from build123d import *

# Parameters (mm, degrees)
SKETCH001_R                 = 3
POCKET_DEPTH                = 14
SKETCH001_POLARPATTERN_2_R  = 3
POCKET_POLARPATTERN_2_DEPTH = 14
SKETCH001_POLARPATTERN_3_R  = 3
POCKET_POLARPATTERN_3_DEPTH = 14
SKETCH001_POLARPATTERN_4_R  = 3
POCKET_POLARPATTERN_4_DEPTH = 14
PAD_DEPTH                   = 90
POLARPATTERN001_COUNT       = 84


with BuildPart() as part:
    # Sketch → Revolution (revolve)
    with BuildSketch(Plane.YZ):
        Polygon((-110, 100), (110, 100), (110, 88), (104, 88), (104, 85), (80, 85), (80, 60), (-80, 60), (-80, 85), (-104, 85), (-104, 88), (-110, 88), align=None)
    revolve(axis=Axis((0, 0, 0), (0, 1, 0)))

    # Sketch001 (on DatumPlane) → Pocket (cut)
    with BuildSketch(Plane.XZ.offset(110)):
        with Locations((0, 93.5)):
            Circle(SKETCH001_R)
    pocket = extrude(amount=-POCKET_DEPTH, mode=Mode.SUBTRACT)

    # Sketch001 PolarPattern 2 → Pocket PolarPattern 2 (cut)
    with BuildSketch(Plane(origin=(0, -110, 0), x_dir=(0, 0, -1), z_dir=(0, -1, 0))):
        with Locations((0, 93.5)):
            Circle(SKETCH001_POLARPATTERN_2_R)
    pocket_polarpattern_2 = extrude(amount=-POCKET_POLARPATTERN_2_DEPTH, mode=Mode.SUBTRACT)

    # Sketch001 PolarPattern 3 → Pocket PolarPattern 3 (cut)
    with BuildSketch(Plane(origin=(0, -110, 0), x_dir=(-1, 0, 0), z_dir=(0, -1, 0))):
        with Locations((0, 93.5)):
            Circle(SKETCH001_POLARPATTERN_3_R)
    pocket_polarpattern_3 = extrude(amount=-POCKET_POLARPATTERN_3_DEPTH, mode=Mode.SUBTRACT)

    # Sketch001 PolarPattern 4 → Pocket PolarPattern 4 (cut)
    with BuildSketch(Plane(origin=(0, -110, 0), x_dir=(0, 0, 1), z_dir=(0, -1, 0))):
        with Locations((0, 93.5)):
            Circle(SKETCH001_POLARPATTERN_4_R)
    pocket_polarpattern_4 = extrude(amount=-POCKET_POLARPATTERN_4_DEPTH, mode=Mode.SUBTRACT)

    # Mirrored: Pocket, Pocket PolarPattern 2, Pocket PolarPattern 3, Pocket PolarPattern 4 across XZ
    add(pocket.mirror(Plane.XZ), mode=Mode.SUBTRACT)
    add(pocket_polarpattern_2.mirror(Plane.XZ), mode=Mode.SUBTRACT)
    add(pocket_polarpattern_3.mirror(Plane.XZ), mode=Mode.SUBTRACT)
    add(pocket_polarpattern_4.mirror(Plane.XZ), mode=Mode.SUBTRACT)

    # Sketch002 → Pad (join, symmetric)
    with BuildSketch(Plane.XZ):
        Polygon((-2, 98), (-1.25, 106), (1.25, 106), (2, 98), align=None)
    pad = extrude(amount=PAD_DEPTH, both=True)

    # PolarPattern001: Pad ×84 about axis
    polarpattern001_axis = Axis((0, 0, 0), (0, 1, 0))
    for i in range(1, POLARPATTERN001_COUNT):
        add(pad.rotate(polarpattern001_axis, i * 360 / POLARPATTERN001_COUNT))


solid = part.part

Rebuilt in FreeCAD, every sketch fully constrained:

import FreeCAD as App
import Part
import Sketcher

V = App.Vector
Q = App.Units.Quantity


def add_polygon(sketch, points):
    """Adds a closed chain of lines whose ends are joined by coincident constraints."""
    first, n = sketch.GeometryCount, len(points)
    for a, b in zip(points, points[1:] + points[:1]):
        sketch.addGeometry(Part.LineSegment(App.Vector(*a, 0), App.Vector(*b, 0)), False)
    for i in range(n):
        sketch.addConstraint(Sketcher.Constraint("Coincident", first + i, 2, first + (i + 1) % n, 1))

doc = App.newDocument("Part")
body = doc.addObject("PartDesign::Body", "Body")

# Sketch on YZ plane
sketch1 = doc.addObject("Sketcher::SketchObject", "Sketch")
body.addObject(sketch1)
sketch1.AttachmentSupport = (doc.YZ_Plane, [""])
sketch1.MapMode = "FlatFace"
add_polygon(sketch1, [(110, 100), (-110, 100), (-110, 88), (-104, 88), (-104, 85), (-80, 85), (-80, 60), (80, 60), (80, 85), (104, 85), (104, 88), (110, 88)])  # lines 0-11
sketch1.addConstraint(Sketcher.Constraint("Horizontal", 0))
sketch1.addConstraint(Sketcher.Constraint("Vertical", 1))
sketch1.addConstraint(Sketcher.Constraint("Horizontal", 2))
sketch1.addConstraint(Sketcher.Constraint("Vertical", 3))
sketch1.addConstraint(Sketcher.Constraint("Horizontal", 4))
sketch1.addConstraint(Sketcher.Constraint("Vertical", 5))
sketch1.addConstraint(Sketcher.Constraint("Horizontal", 6))
sketch1.addConstraint(Sketcher.Constraint("Vertical", 7))
sketch1.addConstraint(Sketcher.Constraint("Horizontal", 8))
sketch1.addConstraint(Sketcher.Constraint("Vertical", 9))
sketch1.addConstraint(Sketcher.Constraint("Horizontal", 10))
sketch1.addConstraint(Sketcher.Constraint("Vertical", 11))
sketch1.addConstraint(Sketcher.Constraint("Symmetric", 4, 2, 7, 2, -2))
sketch1.addConstraint(Sketcher.Constraint("Symmetric", 2, 2, 9, 2, -2))
sketch1.addConstraint(Sketcher.Constraint("Equal", 2, 10))
sketch1.addConstraint(Sketcher.Constraint("DistanceX", 0, 2, 0, 1, Q("220 mm")))
sketch1.addConstraint(Sketcher.Constraint("DistanceX", 2, 1, 2, 2, Q("6 mm")))
sketch1.addConstraint(Sketcher.Constraint("DistanceX", 4, 1, 4, 2, Q("24 mm")))
sketch1.addConstraint(Sketcher.Constraint("DistanceY", 1, 2, 1, 1, Q("12 mm")))
sketch1.addConstraint(Sketcher.Constraint("DistanceY", 3, 2, 3, 1, Q("3 mm")))
sketch1.addConstraint(Sketcher.Constraint("DistanceY", 5, 2, 5, 1, Q("25 mm")))
sketch1.addConstraint(Sketcher.Constraint("DistanceY", -1, 1, 0, 2, Q("100 mm")))
revolution = doc.addObject("PartDesign::Revolution", "Revolution")
body.addObject(revolution)
revolution.Profile = sketch1
revolution.ReferenceAxis = (sketch1, ["H_Axis"])
revolution.Angle = 360

# Sketch on XZ plane
sketch2 = doc.addObject("Sketcher::SketchObject", "Sketch001")
body.addObject(sketch2)
sketch2.AttachmentSupport = (doc.XZ_Plane, [""])
sketch2.MapMode = "FlatFace"
sketch2.AttachmentOffset = App.Placement(V(0, 0, 110), App.Rotation())
sketch2.addGeometry(Part.Circle(V(0, 93.5, 0), V(0, 0, 1), 3), False)
sketch2.addConstraint(Sketcher.Constraint("PointOnObject", 0, 3, -2))
sketch2.addConstraint(Sketcher.Constraint("Diameter", 0, Q("6 mm")))
sketch2.addConstraint(Sketcher.Constraint("DistanceY", -1, 1, 0, 3, Q("93.5 mm")))
pocket1 = doc.addObject("PartDesign::Pocket", "Pocket")
body.addObject(pocket1)
pocket1.Profile = sketch2
pocket1.Length = 14

# Sketch on XZ plane
sketch3 = doc.addObject("Sketcher::SketchObject", "Sketch002")
body.addObject(sketch3)
sketch3.AttachmentSupport = (doc.XZ_Plane, [""])
sketch3.MapMode = "FlatFace"
sketch3.AttachmentOffset = App.Placement(V(0, 0, 110), App.Rotation())
sketch3.addGeometry(Part.Circle(V(93.5, 0, 0), V(0, 0, 1), 3), False)
sketch3.addConstraint(Sketcher.Constraint("PointOnObject", 0, 3, -1))
sketch3.addConstraint(Sketcher.Constraint("Diameter", 0, Q("6 mm")))
sketch3.addConstraint(Sketcher.Constraint("DistanceX", -1, 1, 0, 3, Q("93.5 mm")))
pocket2 = doc.addObject("PartDesign::Pocket", "Pocket001")
body.addObject(pocket2)
pocket2.Profile = sketch3
pocket2.Length = 14

# Sketch on XZ plane
sketch4 = doc.addObject("Sketcher::SketchObject", "Sketch003")
body.addObject(sketch4)
sketch4.AttachmentSupport = (doc.XZ_Plane, [""])
sketch4.MapMode = "FlatFace"
sketch4.AttachmentOffset = App.Placement(V(0, 0, 110), App.Rotation())
sketch4.addGeometry(Part.Circle(V(0, -93.5, 0), V(0, 0, 1), 3), False)
sketch4.addConstraint(Sketcher.Constraint("PointOnObject", 0, 3, -2))
sketch4.addConstraint(Sketcher.Constraint("Diameter", 0, Q("6 mm")))
sketch4.addConstraint(Sketcher.Constraint("DistanceY", 0, 3, -1, 1, Q("93.5 mm")))
pocket3 = doc.addObject("PartDesign::Pocket", "Pocket002")
body.addObject(pocket3)
pocket3.Profile = sketch4
pocket3.Length = 14

# Sketch on XZ plane
sketch5 = doc.addObject("Sketcher::SketchObject", "Sketch004")
body.addObject(sketch5)
sketch5.AttachmentSupport = (doc.XZ_Plane, [""])
sketch5.MapMode = "FlatFace"
sketch5.AttachmentOffset = App.Placement(V(0, 0, 110), App.Rotation())
sketch5.addGeometry(Part.Circle(V(-93.5, 0, 0), V(0, 0, 1), 3), False)
sketch5.addConstraint(Sketcher.Constraint("PointOnObject", 0, 3, -1))
sketch5.addConstraint(Sketcher.Constraint("Diameter", 0, Q("6 mm")))
sketch5.addConstraint(Sketcher.Constraint("DistanceX", 0, 3, -1, 1, Q("93.5 mm")))
pocket4 = doc.addObject("PartDesign::Pocket", "Pocket003")
body.addObject(pocket4)
pocket4.Profile = sketch5
pocket4.Length = 14
doc.recompute()

mirrored = doc.addObject("PartDesign::Mirrored", "Mirrored")
body.addObject(mirrored)
mirrored.Originals = [pocket1, pocket2, pocket3, pocket4]
mirrored.MirrorPlane = (doc.XZ_Plane, [""])
body.Tip = mirrored

# Sketch on XZ plane
sketch6 = doc.addObject("Sketcher::SketchObject", "Sketch005")
body.addObject(sketch6)
sketch6.AttachmentSupport = (doc.XZ_Plane, [""])
sketch6.MapMode = "FlatFace"
add_polygon(sketch6, [(-1.25, 106), (-2, 98), (2, 98), (1.25, 106)])  # lines 0-3
sketch6.addConstraint(Sketcher.Constraint("Horizontal", 1))
sketch6.addConstraint(Sketcher.Constraint("Horizontal", 3))
sketch6.addConstraint(Sketcher.Constraint("Equal", 0, 2))
sketch6.addConstraint(Sketcher.Constraint("DistanceX", 1, 1, 1, 2, Q("4 mm")))
sketch6.addConstraint(Sketcher.Constraint("DistanceX", 3, 2, 3, 1, Q("2.5 mm")))
sketch6.addConstraint(Sketcher.Constraint("DistanceX", 0, 2, -1, 1, Q("2 mm")))
sketch6.addConstraint(Sketcher.Constraint("DistanceY", -1, 1, 0, 2, Q("98 mm")))
sketch6.addConstraint(Sketcher.Constraint("DistanceY", -1, 1, 2, 2, Q("106 mm")))
pad1 = doc.addObject("PartDesign::Pad", "Pad")
body.addObject(pad1)
pad1.Profile = sketch6
pad1.Length = 180
pad1.Midplane = True
doc.recompute()

polarpattern = doc.addObject("PartDesign::PolarPattern", "PolarPattern")
body.addObject(polarpattern)
polarpattern.Originals = [pad1]
polarpattern.Axis = (doc.Y_Axis, [""])
polarpattern.Angle = 360
polarpattern.Occurrences = 84
body.Tip = polarpattern

doc.recompute()
